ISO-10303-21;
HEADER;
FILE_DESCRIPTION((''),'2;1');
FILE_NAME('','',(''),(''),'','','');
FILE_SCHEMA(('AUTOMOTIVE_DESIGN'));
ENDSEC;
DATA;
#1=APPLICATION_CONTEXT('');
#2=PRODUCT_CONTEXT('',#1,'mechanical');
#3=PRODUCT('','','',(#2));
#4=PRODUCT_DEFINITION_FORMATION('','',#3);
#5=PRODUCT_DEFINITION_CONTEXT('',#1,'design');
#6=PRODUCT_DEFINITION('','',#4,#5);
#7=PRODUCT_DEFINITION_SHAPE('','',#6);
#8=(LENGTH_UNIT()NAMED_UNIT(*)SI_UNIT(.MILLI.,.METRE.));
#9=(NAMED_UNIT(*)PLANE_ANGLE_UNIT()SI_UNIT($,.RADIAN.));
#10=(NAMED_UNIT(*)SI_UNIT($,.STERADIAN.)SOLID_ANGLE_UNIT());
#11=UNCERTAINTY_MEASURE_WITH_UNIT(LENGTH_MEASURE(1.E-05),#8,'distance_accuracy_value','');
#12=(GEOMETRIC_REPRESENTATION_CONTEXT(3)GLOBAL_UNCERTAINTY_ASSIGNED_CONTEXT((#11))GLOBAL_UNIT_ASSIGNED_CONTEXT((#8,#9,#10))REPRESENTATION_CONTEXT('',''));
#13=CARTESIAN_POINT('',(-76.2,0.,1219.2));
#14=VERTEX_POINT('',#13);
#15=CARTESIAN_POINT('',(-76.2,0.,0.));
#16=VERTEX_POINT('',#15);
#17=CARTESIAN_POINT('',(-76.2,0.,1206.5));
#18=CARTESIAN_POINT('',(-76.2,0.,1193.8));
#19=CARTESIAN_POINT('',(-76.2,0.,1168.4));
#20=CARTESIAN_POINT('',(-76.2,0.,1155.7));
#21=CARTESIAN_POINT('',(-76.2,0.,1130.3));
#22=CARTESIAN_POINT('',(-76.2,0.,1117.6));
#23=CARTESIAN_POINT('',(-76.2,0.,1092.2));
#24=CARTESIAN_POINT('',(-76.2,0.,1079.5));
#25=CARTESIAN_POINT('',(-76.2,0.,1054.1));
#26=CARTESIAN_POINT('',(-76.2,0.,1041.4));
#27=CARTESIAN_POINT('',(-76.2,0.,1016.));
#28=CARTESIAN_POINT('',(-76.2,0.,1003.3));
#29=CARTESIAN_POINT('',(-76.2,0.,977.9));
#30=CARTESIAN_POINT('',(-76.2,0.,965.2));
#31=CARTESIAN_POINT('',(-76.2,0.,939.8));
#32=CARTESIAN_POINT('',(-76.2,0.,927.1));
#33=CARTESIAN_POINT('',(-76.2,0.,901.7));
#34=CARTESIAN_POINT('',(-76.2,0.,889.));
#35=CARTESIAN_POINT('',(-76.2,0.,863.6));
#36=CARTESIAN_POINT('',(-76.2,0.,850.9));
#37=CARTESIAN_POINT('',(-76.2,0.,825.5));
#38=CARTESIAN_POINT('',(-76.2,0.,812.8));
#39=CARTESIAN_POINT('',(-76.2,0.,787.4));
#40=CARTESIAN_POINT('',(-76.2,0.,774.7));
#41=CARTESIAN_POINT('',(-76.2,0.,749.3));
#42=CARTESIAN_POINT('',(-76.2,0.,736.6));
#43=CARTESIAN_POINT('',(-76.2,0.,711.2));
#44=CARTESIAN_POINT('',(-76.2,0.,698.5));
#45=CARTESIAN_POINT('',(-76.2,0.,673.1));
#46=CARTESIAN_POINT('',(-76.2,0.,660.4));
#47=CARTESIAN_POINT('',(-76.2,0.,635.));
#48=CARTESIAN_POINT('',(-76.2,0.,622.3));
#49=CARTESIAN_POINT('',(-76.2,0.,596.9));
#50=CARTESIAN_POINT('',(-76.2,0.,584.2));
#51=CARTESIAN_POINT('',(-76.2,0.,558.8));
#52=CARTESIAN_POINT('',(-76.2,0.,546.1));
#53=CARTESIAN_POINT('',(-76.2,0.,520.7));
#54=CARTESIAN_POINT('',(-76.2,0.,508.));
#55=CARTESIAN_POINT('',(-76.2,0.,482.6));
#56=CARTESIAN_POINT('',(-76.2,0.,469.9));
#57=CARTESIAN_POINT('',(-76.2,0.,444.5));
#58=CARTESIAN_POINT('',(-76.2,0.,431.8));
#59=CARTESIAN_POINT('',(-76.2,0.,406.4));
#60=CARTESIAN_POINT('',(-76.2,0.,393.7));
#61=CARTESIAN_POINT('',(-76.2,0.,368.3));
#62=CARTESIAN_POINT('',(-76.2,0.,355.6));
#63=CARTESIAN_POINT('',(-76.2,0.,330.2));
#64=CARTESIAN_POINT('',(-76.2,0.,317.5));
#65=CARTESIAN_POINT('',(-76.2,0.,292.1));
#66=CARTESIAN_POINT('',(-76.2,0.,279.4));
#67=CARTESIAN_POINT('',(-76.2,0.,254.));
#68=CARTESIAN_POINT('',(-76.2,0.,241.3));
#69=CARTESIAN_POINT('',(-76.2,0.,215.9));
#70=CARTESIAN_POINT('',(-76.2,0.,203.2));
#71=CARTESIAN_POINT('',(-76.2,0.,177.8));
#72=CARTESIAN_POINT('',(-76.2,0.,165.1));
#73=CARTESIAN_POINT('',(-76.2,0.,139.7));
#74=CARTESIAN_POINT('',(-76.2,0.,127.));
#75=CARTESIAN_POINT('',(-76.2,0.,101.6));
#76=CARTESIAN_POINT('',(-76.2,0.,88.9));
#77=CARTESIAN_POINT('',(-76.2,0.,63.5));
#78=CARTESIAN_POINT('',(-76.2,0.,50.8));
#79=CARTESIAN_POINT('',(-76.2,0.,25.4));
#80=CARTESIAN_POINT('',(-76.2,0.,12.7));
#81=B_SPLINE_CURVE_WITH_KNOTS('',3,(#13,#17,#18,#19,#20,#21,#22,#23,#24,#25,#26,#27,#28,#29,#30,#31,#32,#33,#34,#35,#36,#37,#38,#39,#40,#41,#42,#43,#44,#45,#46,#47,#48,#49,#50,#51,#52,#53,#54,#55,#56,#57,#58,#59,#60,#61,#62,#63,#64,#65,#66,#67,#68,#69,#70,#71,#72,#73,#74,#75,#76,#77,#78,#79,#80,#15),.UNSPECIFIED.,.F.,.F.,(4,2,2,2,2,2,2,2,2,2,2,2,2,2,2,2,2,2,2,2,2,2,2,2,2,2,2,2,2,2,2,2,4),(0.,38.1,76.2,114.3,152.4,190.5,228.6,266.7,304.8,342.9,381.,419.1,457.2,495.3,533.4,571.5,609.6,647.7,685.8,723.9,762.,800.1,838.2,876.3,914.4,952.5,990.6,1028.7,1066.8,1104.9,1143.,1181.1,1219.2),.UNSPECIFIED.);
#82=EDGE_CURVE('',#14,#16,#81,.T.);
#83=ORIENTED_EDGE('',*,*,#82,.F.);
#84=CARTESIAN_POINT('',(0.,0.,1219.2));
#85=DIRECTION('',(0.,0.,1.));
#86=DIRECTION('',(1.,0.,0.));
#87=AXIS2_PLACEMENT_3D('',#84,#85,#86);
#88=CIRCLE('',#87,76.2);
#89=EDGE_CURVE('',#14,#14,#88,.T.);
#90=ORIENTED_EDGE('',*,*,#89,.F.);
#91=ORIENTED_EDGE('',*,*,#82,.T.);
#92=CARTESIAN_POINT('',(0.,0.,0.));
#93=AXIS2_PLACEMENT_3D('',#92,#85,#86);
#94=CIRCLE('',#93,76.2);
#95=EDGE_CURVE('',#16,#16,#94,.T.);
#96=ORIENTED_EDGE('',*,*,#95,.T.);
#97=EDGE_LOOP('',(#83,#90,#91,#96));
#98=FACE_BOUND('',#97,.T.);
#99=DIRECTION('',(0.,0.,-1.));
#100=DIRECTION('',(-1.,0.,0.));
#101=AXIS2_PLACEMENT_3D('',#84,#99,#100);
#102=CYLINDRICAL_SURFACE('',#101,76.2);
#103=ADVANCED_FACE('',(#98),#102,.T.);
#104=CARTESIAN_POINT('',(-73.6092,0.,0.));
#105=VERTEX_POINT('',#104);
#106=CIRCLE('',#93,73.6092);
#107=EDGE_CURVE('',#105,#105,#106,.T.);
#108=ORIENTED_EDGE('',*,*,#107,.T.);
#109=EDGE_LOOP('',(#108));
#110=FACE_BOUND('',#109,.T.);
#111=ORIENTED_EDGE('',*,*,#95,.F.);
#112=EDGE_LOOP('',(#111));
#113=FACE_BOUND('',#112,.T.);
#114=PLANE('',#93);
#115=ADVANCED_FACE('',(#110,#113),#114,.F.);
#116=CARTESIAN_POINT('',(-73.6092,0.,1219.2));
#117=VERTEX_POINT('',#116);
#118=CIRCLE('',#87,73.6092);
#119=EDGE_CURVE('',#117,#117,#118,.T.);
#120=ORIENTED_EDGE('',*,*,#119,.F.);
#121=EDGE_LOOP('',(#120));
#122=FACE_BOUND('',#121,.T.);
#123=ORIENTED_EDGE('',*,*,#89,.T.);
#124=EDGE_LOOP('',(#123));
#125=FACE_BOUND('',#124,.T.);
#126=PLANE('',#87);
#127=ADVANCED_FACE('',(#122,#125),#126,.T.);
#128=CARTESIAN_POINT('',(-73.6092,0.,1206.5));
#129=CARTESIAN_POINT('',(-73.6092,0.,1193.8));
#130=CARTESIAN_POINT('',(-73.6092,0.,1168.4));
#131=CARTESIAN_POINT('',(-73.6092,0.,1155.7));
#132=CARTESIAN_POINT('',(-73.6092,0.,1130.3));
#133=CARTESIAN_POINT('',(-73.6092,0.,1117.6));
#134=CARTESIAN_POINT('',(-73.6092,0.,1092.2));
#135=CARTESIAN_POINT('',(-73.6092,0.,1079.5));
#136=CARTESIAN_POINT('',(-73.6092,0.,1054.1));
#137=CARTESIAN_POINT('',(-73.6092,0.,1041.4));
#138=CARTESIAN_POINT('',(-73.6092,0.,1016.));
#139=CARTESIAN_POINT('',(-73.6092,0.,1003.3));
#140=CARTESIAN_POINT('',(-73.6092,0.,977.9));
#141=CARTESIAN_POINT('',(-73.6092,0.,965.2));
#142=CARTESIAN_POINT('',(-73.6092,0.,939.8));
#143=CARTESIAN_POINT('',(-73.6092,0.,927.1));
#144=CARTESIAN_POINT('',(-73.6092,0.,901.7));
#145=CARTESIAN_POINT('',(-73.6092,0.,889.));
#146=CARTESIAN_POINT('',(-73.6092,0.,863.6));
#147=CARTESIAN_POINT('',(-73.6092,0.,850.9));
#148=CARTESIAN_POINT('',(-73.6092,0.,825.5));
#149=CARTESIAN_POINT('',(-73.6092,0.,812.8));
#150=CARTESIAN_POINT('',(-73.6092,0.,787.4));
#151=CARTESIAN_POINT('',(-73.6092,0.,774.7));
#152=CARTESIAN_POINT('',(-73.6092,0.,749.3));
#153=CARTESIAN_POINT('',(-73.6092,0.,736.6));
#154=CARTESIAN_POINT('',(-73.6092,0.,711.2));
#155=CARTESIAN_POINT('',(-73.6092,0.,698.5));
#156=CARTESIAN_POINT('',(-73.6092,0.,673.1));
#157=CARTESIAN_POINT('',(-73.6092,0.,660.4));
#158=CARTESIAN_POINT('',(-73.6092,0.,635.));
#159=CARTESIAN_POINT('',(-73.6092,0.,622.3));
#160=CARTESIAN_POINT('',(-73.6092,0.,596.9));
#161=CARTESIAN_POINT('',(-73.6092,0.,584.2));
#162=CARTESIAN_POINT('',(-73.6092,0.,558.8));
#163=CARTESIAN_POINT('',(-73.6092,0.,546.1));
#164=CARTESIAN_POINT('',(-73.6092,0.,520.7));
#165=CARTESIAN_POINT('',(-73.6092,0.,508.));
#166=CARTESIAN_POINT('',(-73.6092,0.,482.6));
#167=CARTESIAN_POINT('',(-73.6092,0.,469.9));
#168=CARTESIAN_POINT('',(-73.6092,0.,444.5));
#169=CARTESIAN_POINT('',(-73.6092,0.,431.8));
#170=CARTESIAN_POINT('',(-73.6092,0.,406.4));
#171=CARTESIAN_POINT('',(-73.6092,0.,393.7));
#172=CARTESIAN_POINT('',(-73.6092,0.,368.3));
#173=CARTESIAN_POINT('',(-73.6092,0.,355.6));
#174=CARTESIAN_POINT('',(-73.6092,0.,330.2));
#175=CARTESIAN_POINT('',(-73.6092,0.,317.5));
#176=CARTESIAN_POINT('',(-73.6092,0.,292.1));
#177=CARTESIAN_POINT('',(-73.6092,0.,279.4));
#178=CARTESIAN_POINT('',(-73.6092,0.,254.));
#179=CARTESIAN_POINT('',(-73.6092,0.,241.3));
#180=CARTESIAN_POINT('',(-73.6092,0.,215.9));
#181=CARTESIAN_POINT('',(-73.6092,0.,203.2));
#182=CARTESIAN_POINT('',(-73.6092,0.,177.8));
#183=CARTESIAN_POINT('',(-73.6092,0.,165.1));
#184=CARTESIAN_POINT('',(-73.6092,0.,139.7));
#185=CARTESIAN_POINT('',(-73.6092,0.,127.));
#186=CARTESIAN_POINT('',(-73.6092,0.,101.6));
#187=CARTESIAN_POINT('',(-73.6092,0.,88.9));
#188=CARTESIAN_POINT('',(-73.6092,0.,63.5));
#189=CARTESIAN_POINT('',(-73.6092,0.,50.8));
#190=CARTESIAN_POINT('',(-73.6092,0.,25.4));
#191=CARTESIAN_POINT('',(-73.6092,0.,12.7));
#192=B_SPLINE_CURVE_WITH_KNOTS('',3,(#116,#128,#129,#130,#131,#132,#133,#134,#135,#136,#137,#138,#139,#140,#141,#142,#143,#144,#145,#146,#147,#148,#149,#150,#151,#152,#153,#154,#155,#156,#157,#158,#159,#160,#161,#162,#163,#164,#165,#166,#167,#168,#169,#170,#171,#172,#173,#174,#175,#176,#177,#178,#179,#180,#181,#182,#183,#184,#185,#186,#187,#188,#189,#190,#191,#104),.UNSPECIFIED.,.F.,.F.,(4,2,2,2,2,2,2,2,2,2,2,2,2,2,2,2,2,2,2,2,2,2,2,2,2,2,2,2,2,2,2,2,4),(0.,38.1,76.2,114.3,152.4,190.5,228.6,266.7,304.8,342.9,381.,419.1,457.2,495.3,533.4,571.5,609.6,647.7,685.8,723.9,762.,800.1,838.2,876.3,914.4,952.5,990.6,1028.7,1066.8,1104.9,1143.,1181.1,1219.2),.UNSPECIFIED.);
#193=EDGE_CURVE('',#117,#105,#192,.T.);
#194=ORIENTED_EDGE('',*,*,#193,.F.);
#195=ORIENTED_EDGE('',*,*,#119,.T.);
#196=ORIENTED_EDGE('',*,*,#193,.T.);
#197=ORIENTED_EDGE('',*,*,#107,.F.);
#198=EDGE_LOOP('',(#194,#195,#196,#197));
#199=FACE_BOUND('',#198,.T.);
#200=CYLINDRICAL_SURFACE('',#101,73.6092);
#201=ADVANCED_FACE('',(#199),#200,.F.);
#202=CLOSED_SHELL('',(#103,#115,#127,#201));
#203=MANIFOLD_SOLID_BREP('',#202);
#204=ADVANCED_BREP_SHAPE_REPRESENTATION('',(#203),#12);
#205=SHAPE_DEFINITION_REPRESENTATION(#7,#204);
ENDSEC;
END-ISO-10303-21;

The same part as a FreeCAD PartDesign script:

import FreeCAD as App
import Part
import Sketcher
Q = App.Units.Quantity

doc = App.newDocument("Part")
body = doc.addObject("PartDesign::Body", "Body")

# Sketch on XY plane
sketch1 = body.newObject("Sketcher::SketchObject", "Sketch")
sketch1.AttachmentSupport = (doc.getObject("XY_Plane"), [""])
sketch1.MapMode = "FlatFace"
sketch1.addGeometry([
    Part.Circle(App.Vector(0, 0, 0), App.Vector(0, 0, 1), 76.2),
    Part.Circle(App.Vector(0, 0, 0), App.Vector(0, 0, 1), 73.6092),
], False)
sketch1.addConstraint([
    Sketcher.Constraint("Coincident", 0, 3, -1, 1),
    Sketcher.Constraint("Coincident", 1, 3, -1, 1),
    Sketcher.Constraint("Diameter", 0, Q("6 in")),
    Sketcher.Constraint("Diameter", 1, Q("5.796 in")),
])
pad1 = body.newObject("PartDesign::Pad", "Pad")
pad1.Profile = sketch1
pad1.Length = Q("48 in")

doc.recompute()
